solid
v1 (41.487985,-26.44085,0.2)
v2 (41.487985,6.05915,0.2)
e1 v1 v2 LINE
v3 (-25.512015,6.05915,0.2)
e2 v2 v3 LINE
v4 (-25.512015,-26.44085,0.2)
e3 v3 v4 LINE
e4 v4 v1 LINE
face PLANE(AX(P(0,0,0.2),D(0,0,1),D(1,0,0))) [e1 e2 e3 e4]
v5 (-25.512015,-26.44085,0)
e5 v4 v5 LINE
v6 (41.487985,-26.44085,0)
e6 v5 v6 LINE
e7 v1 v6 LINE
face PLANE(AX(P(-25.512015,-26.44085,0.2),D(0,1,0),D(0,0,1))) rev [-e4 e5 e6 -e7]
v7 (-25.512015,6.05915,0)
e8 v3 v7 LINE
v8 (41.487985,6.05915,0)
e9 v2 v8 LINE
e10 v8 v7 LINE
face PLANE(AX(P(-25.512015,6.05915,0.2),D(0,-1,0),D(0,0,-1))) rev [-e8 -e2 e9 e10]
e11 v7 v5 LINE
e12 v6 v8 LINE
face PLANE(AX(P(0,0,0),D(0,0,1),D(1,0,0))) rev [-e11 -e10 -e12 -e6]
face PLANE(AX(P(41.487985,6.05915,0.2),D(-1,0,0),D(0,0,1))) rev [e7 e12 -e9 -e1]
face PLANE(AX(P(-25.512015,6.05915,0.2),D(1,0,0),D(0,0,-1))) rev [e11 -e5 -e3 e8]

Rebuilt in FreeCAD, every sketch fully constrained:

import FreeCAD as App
import Part
import Sketcher

V = App.Vector
Q = App.Units.Quantity

doc = App.newDocument("Part")
body = doc.addObject("PartDesign::Body", "Body")

# Sketch on XY plane
sketch1 = body.newObject("Sketcher::SketchObject", "Sketch")
sketch1.AttachmentSupport = (doc.getObject("XY_Plane"), [""])
sketch1.MapMode = "FlatFace"
sketch1.addGeometry([
    Part.LineSegment(V(-26, 6, 0), V(-26, -26, 0)),
    Part.LineSegment(V(-26, -26, 0), V(41, -26, 0)),
    Part.LineSegment(V(41, -26, 0), V(41, 6, 0)),
    Part.LineSegment(V(41, 6, 0), V(-26, 6, 0)),
], False)
sketch1.addConstraint([
    Sketcher.Constraint("Coincident", 0, 2, 1, 1),
    Sketcher.Constraint("Coincident", 1, 2, 2, 1),
    Sketcher.Constraint("Coincident", 2, 2, 3, 1),
    Sketcher.Constraint("Coincident", 3, 2, 0, 1),
    Sketcher.Constraint("Vertical", 0),
    Sketcher.Constraint("Horizontal", 1),
    Sketcher.Constraint("Vertical", 2),
    Sketcher.Constraint("Horizontal", 3),
    Sketcher.Constraint("DistanceX", 1, 1, 1, 2, Q("67 mm")),
    Sketcher.Constraint("DistanceY", 0, 2, 0, 1, Q("32.5 mm")),
    Sketcher.Constraint("DistanceY", 0, 2, -1, 1, Q("26.44085 mm")),
    Sketcher.Constraint("DistanceX", 0, 2, -1, 1, Q("25.512015 mm")),
])
pad1 = body.newObject("PartDesign::Pad", "Pad")
pad1.Profile = sketch1
pad1.Length = 0.2

doc.recompute()
